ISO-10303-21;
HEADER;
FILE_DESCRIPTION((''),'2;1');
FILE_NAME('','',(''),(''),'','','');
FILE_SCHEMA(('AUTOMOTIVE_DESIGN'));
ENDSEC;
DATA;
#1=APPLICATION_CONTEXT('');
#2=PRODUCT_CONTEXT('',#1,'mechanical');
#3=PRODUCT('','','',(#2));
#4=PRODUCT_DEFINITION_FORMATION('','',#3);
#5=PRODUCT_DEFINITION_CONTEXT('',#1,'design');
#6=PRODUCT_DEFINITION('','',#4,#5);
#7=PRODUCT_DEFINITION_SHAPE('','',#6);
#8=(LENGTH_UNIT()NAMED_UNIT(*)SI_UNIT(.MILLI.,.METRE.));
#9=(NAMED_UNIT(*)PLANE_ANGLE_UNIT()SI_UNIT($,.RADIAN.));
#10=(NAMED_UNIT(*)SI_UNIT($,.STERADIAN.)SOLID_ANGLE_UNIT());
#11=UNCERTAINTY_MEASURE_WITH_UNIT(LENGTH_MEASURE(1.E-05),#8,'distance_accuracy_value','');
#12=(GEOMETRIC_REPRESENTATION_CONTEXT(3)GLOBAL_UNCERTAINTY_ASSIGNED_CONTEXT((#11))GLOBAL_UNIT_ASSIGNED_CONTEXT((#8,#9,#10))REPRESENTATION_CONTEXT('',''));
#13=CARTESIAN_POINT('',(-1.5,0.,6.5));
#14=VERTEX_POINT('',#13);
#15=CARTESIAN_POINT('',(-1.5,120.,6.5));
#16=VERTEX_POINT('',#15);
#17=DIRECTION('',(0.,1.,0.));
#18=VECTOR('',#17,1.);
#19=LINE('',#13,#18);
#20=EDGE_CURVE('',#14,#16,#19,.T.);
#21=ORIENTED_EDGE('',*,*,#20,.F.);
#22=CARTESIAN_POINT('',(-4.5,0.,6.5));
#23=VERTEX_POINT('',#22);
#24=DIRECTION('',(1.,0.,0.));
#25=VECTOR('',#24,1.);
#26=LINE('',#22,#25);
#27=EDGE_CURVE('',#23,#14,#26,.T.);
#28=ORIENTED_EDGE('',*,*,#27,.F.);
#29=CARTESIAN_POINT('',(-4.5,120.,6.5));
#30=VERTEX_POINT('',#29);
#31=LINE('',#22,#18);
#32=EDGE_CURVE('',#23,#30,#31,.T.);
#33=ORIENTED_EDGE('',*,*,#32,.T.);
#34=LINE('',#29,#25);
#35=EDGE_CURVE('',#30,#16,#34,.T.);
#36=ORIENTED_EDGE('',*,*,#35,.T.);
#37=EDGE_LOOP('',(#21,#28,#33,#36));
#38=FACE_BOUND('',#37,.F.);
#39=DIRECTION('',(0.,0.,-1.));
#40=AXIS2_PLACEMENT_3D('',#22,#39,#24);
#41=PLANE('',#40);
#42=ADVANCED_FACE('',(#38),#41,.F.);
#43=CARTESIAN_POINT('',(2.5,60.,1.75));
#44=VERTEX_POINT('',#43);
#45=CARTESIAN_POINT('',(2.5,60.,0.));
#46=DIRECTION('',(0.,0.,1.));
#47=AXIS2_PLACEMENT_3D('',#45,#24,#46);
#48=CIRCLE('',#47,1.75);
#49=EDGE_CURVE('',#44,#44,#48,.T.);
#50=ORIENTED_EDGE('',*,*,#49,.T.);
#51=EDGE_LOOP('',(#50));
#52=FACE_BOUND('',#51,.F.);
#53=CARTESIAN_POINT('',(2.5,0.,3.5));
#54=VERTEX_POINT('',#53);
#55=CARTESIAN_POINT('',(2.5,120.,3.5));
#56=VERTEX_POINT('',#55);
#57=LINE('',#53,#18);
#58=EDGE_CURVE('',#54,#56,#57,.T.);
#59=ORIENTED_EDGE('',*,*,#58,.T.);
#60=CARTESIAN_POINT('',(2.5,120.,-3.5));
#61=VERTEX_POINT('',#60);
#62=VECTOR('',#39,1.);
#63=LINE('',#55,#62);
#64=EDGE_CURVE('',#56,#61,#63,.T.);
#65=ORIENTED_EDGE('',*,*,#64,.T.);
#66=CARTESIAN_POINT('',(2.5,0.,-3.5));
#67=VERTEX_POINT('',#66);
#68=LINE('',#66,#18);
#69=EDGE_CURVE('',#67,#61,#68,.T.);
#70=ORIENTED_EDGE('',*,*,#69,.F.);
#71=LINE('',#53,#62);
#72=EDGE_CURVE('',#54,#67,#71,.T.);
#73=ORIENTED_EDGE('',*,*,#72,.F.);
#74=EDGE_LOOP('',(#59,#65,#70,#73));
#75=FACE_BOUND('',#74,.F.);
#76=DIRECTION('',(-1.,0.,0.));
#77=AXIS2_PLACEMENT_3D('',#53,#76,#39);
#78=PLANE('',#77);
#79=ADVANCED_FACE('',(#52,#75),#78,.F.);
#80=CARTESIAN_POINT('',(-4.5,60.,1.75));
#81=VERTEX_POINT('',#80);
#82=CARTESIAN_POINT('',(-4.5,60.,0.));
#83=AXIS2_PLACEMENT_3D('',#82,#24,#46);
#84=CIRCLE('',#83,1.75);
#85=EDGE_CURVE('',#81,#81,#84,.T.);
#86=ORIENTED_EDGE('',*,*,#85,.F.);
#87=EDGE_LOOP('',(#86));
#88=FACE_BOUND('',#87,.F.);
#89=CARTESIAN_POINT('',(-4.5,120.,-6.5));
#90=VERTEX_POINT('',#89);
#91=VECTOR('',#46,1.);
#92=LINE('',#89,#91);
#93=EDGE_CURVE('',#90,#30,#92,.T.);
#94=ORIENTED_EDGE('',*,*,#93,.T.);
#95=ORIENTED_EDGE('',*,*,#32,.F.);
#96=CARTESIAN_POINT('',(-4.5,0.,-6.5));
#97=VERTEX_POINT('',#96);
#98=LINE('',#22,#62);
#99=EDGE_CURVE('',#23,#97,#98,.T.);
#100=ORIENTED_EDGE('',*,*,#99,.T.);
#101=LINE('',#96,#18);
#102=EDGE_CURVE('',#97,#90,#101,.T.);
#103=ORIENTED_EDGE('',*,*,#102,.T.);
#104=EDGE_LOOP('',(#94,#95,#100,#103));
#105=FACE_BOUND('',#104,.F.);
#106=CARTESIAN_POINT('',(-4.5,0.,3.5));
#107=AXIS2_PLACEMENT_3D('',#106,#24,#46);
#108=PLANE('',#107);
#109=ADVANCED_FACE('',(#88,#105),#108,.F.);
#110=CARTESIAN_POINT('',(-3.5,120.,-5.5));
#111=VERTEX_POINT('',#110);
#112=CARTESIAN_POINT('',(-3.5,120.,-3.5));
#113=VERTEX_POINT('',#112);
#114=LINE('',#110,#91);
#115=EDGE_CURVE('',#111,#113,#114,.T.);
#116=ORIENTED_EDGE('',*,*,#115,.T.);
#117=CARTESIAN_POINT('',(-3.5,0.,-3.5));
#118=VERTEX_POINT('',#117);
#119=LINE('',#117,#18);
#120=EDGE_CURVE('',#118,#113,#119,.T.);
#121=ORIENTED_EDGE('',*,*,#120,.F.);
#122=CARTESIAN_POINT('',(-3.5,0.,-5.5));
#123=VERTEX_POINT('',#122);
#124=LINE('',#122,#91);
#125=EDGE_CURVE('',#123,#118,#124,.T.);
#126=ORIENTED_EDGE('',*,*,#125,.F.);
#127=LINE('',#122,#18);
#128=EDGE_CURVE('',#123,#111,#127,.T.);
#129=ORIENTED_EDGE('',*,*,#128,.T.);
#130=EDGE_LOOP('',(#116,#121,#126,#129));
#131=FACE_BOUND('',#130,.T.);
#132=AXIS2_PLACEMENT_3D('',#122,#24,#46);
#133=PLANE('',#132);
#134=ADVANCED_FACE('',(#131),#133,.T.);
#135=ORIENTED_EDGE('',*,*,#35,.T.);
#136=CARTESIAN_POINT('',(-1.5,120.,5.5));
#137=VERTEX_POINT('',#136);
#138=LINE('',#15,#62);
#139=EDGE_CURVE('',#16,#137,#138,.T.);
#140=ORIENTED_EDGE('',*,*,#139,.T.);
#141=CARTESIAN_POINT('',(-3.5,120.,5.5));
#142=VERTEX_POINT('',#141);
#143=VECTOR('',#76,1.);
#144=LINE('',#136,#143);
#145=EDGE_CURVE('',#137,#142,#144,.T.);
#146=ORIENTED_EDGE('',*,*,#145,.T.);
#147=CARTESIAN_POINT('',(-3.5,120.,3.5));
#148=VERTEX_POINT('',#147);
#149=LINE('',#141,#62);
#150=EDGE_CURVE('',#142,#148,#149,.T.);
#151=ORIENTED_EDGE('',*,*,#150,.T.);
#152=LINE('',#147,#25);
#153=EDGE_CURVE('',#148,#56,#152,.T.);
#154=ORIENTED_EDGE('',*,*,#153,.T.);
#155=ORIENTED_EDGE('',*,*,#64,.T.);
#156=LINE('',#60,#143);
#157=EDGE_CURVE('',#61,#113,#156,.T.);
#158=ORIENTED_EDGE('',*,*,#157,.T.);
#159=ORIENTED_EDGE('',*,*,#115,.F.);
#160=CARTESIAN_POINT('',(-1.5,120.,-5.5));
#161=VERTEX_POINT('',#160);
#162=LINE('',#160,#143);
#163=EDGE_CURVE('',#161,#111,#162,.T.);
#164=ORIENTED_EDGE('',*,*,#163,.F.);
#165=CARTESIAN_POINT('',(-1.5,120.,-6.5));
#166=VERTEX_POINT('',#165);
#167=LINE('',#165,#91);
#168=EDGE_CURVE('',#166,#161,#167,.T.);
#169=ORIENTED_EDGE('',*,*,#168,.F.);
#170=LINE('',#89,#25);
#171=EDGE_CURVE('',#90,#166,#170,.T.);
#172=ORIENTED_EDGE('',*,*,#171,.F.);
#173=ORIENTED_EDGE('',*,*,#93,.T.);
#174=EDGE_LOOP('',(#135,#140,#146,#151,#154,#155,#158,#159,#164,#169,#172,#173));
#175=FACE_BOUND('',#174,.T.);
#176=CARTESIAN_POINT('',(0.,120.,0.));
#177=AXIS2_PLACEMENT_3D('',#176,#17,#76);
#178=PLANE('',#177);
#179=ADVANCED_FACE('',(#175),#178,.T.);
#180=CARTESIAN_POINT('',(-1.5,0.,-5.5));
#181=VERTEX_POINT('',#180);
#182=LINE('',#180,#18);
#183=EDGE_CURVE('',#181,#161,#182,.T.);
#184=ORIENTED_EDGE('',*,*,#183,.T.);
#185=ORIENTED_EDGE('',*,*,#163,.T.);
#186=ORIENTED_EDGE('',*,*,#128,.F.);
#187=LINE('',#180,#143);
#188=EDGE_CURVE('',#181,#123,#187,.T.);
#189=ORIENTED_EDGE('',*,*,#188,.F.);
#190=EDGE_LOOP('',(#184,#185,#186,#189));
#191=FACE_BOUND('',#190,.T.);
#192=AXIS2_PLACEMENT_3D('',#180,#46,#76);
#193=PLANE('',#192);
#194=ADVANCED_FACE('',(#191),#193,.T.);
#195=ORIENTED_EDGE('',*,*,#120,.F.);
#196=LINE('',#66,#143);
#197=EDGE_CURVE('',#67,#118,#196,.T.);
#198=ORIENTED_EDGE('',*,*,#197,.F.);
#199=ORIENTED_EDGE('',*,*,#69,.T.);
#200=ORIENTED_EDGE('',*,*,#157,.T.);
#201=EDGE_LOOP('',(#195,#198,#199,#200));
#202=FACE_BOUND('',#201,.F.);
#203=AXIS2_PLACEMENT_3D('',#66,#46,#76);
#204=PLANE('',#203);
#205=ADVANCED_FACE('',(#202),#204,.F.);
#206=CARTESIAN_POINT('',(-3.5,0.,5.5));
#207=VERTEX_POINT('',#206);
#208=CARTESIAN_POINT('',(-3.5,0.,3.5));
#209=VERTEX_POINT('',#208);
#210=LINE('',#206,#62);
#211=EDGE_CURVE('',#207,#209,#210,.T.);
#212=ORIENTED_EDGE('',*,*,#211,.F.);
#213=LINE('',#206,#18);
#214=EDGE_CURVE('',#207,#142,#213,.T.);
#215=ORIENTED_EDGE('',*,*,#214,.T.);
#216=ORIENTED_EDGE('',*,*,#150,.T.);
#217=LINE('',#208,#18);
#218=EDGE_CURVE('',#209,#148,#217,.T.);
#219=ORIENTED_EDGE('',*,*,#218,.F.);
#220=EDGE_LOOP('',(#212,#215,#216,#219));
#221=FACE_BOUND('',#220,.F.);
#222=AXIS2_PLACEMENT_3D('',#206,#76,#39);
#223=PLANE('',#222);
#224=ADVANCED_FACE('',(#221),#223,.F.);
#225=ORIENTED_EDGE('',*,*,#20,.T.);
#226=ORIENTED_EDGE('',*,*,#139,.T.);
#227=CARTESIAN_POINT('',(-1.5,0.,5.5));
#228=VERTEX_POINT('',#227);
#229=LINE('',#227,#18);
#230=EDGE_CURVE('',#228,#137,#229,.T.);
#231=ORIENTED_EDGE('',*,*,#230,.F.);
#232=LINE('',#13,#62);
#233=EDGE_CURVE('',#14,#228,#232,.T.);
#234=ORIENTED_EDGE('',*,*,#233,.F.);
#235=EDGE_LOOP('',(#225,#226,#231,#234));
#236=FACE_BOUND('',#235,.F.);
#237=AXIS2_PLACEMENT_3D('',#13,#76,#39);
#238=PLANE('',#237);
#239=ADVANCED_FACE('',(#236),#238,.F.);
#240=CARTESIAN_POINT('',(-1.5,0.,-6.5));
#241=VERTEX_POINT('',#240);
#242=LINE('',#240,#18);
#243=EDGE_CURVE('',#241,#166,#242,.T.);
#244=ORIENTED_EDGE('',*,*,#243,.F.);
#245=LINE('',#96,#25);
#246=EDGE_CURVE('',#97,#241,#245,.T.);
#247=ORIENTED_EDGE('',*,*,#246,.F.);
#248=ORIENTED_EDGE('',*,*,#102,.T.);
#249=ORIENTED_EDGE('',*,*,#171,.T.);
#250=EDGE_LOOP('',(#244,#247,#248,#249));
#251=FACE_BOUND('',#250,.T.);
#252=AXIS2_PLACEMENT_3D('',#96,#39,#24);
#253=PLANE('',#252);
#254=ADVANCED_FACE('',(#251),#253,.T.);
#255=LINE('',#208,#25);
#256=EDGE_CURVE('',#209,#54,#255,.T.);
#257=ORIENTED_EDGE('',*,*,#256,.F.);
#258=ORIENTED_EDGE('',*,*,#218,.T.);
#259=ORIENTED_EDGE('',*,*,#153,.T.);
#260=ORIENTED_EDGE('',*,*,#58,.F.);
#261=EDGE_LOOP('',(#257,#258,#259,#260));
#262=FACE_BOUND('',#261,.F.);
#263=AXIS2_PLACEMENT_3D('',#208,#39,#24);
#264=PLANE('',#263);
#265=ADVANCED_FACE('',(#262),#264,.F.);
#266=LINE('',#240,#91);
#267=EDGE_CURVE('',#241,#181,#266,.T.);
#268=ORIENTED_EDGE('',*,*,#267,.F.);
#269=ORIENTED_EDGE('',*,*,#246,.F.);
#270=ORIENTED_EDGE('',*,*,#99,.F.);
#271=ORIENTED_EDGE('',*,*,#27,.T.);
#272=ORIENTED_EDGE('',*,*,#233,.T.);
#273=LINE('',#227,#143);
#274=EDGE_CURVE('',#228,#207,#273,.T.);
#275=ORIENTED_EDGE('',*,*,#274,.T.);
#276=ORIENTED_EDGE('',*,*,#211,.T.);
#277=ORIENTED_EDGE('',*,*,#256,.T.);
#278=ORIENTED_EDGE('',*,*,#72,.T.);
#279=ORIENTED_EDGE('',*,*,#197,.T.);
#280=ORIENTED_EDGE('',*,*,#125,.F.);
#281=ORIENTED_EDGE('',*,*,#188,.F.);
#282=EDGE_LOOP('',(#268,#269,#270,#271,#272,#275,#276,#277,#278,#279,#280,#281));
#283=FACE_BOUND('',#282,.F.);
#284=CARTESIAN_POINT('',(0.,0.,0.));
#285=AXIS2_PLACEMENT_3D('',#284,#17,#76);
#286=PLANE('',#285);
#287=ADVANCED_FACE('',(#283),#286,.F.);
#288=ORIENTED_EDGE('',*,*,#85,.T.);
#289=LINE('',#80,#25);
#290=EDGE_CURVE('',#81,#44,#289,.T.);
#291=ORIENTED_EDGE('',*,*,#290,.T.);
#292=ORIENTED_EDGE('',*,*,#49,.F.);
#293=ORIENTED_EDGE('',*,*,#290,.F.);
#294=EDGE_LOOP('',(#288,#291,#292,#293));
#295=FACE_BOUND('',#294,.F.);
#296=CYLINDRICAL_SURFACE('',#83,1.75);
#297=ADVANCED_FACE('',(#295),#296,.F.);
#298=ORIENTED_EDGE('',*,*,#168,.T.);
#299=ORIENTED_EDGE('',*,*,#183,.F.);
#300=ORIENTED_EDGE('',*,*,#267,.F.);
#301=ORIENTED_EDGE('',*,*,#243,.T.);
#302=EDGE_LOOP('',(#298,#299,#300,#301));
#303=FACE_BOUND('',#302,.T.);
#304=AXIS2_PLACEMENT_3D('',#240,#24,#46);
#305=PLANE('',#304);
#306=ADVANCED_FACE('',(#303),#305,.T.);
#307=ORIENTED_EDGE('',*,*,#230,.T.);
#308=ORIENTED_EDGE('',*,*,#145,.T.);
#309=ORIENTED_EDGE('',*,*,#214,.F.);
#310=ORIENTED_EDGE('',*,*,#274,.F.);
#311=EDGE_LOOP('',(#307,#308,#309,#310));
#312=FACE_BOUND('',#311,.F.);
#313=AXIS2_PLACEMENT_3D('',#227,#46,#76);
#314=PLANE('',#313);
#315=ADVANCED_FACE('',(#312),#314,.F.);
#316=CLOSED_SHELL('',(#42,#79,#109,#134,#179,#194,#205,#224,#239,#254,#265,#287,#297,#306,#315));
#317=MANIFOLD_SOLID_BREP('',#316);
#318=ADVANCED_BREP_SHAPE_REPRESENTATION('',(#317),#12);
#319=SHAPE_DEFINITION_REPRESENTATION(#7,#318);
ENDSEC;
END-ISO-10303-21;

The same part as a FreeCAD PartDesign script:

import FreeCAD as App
import Part
import Sketcher

doc = App.newDocument("Part")
params = doc.addObject("Spreadsheet::Sheet", "Params")
for row, (alias, value) in enumerate([
    ("sketch1_width", "2 mm"),
    ("sketch1_width2", "3 mm"),
    ("sketch1_height", "7 mm"),
    ("sketch1_height2", "1 mm"),
    ("pad1_length", "120 mm"),
    ("sketch2_diameter", "3.5 mm"),
    ("hole_diameter", "3.5 mm"),
], start=1):
    params.set(f"A{row}", alias)
    params.set(f"B{row}", "=" + value)
    params.setAlias(f"B{row}", alias)

body = doc.addObject("PartDesign::Body", "Body")

# Sketch on XZ plane
sketch1 = body.newObject("Sketcher::SketchObject", "Sketch")
sketch1.AttachmentSupport = (doc.getObject("XZ_Plane"), [""])
sketch1.MapMode = "FlatFace"
sketch1.addGeometry(Part.LineSegment(App.Vector(-3.5, 5.5, 0), App.Vector(-3.5, 3.5, 0)), False)
sketch1.addGeometry(Part.LineSegment(App.Vector(-3.5, 3.5, 0), App.Vector(2.5, 3.5, 0)), False)
sketch1.addGeometry(Part.LineSegment(App.Vector(2.5, 3.5, 0), App.Vector(2.5, -3.5, 0)), False)
sketch1.addGeometry(Part.LineSegment(App.Vector(2.5, -3.5, 0), App.Vector(-3.5, -3.5, 0)), False)
sketch1.addGeometry(Part.LineSegment(App.Vector(-3.5, -3.5, 0), App.Vector(-3.5, -5.5, 0)), False)
sketch1.addGeometry(Part.LineSegment(App.Vector(-3.5, -5.5, 0), App.Vector(-1.5, -5.5, 0)), False)
sketch1.addGeometry(Part.LineSegment(App.Vector(-1.5, -5.5, 0), App.Vector(-1.5, -6.5, 0)), False)
sketch1.addGeometry(Part.LineSegment(App.Vector(-1.5, -6.5, 0), App.Vector(-4.5, -6.5, 0)), False)
sketch1.addGeometry(Part.LineSegment(App.Vector(-4.5, -6.5, 0), App.Vector(-4.5, 6.5, 0)), False)
sketch1.addGeometry(Part.LineSegment(App.Vector(-4.5, 6.5, 0), App.Vector(-1.5, 6.5, 0)), False)
sketch1.addGeometry(Part.LineSegment(App.Vector(-1.5, 6.5, 0), App.Vector(-1.5, 5.5, 0)), False)
sketch1.addGeometry(Part.LineSegment(App.Vector(-1.5, 5.5, 0), App.Vector(-3.5, 5.5, 0)), False)
sketch1.addConstraint(Sketcher.Constraint("Coincident", 0, 2, 1, 1))
sketch1.addConstraint(Sketcher.Constraint("Coincident", 1, 2, 2, 1))
sketch1.addConstraint(Sketcher.Constraint("Coincident", 2, 2, 3, 1))
sketch1.addConstraint(Sketcher.Constraint("Coincident", 3, 2, 4, 1))
sketch1.addConstraint(Sketcher.Constraint("Coincident", 4, 2, 5, 1))
sketch1.addConstraint(Sketcher.Constraint("Coincident", 5, 2, 6, 1))
sketch1.addConstraint(Sketcher.Constraint("Coincident", 6, 2, 7, 1))
sketch1.addConstraint(Sketcher.Constraint("Coincident", 7, 2, 8, 1))
sketch1.addConstraint(Sketcher.Constraint("Coincident", 8, 2, 9, 1))
sketch1.addConstraint(Sketcher.Constraint("Coincident", 9, 2, 10, 1))
sketch1.addConstraint(Sketcher.Constraint("Coincident", 10, 2, 11, 1))
sketch1.addConstraint(Sketcher.Constraint("Coincident", 11, 2, 0, 1))
sketch1.addConstraint(Sketcher.Constraint("Vertical", 0))
sketch1.addConstraint(Sketcher.Constraint("Horizontal", 1))
sketch1.addConstraint(Sketcher.Constraint("Vertical", 2))
sketch1.addConstraint(Sketcher.Constraint("Horizontal", 3))
sketch1.addConstraint(Sketcher.Constraint("Vertical", 4))
sketch1.addConstraint(Sketcher.Constraint("Horizontal", 5))
sketch1.addConstraint(Sketcher.Constraint("Vertical", 6))
sketch1.addConstraint(Sketcher.Constraint("Horizontal", 7))
sketch1.addConstraint(Sketcher.Constraint("Vertical", 8))
sketch1.addConstraint(Sketcher.Constraint("Horizontal", 9))
sketch1.addConstraint(Sketcher.Constraint("Vertical", 10))
sketch1.addConstraint(Sketcher.Constraint("Horizontal", 11))
sketch1.addConstraint(Sketcher.Constraint("Symmetric", 0, 2, 3, 2, -1))
sketch1.addConstraint(Sketcher.Constraint("Symmetric", 6, 2, 9, 2, -1))
sketch1.addConstraint(Sketcher.Constraint("Equal", 11, 0))
sketch1.addConstraint(Sketcher.Constraint("Equal", 0, 4))
sketch1.addConstraint(Sketcher.Constraint("DistanceX", 5, 1, 5, 2, 2.0))
sketch1.addConstraint(Sketcher.Constraint("DistanceX", 7, 2, 7, 1, 3.0))
sketch1.addConstraint(Sketcher.Constraint("DistanceY", 2, 2, 2, 1, 7.0))
sketch1.addConstraint(Sketcher.Constraint("DistanceY", 6, 2, 6, 1, 1.0))
sketch1.addConstraint(Sketcher.Constraint("DistanceX", 7, 2, 2, 2, 7.0))
sketch1.addConstraint(Sketcher.Constraint("DistanceX", 0, 2, -1, 1, 3.5))
sketch1.setExpression("Constraints[28]", "Params.sketch1_width")
sketch1.setExpression("Constraints[29]", "Params.sketch1_width2")
sketch1.setExpression("Constraints[30]", "Params.sketch1_height")
sketch1.setExpression("Constraints[31]", "Params.sketch1_height2")
pad1 = body.newObject("PartDesign::Pad", "Pad")
pad1.Profile = sketch1
pad1.setExpression("Length", "Params.pad1_length")
pad1.Reversed = True

# Sketch on YZ plane
sketch2 = body.newObject("Sketcher::SketchObject", "Sketch001")
sketch2.AttachmentSupport = (doc.getObject("YZ_Plane"), [""])
sketch2.MapMode = "FlatFace"
sketch2.AttachmentOffset = App.Placement(App.Vector(0, 0, -4.5), App.Rotation())
sketch2.addGeometry(Part.Circle(App.Vector(60, 0, 0), App.Vector(0, 0, 1), 1.8), False)
sketch2.addConstraint(Sketcher.Constraint("PointOnObject", 0, 3, -1))
sketch2.addConstraint(Sketcher.Constraint("Diameter", 0, 3.5))
sketch2.addConstraint(Sketcher.Constraint("DistanceX", -1, 1, 0, 3, 60.0))
sketch2.setExpression("Constraints[1]", "Params.sketch2_diameter")
doc.recompute()
hole = body.newObject("PartDesign::Hole", "Hole")
hole.Profile = sketch2
hole.ThreadType = "None"
hole.setExpression("Diameter", "Params.hole_diameter")
hole.DepthType = "ThroughAll"
hole.Reversed = True

doc.recompute()
